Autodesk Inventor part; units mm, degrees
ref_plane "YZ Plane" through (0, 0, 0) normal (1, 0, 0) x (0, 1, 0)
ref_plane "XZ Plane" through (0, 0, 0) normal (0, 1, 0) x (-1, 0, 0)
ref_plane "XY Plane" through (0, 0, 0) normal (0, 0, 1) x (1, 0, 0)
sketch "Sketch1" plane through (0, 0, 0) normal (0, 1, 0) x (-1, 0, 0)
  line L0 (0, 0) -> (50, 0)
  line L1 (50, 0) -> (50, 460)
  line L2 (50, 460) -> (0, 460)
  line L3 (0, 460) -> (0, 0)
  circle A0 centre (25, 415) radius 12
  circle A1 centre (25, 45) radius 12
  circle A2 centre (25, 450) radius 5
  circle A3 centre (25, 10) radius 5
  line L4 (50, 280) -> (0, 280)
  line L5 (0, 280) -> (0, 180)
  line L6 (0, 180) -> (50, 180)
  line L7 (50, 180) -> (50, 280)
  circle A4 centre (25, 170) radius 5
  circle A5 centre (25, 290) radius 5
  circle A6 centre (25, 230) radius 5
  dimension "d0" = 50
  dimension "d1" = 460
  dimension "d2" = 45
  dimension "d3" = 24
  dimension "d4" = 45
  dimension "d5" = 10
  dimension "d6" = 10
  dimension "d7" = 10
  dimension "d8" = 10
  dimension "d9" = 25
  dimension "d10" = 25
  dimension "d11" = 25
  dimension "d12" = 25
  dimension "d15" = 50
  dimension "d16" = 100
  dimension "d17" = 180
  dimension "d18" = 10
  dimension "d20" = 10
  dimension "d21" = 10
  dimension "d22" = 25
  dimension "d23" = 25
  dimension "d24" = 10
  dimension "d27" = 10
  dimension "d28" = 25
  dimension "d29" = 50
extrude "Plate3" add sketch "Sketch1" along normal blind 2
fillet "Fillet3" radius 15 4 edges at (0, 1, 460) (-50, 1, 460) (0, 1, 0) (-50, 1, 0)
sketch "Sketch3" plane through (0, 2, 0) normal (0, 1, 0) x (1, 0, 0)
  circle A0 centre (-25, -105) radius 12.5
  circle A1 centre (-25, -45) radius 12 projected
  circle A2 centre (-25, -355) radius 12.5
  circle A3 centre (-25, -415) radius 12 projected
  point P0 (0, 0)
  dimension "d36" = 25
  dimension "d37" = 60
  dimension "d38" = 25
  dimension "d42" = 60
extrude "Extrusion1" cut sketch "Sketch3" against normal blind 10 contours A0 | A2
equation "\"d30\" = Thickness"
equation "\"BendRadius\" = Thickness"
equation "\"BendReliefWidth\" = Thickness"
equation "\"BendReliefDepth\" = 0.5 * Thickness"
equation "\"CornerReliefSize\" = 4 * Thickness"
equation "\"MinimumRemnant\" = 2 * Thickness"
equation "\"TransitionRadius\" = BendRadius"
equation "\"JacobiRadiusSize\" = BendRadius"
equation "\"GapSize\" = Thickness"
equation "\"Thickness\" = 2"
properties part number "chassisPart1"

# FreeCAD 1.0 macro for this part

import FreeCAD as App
import Part
import Sketcher

V = App.Vector


def edges_at(feature, points):
    """Names of the edges that pass closest to the given points."""
    edges = feature.Shape.Edges
    near = lambda p: min(range(len(edges)), key=lambda i: edges[i].distToShape(Part.Vertex(*p))[0])
    return sorted({f"Edge{near(p) + 1}" for p in points})

doc = App.newDocument("Part")
body = doc.addObject("PartDesign::Body", "Body")

# Sketch on XZ plane
sketch1 = body.newObject("Sketcher::SketchObject", "Sketch")
sketch1.AttachmentSupport = (doc.getObject("XZ_Plane"), [""])
sketch1.MapMode = "FlatFace"
sketch1.addGeometry([
    Part.LineSegment(V(0, 0, 0), V(-50, 0, 0)),  # 0
    Part.LineSegment(V(-50, 0, 0), V(-50, 460, 0)),  # 1
    Part.LineSegment(V(-50, 460, 0), V(0, 460, 0)),  # 2
    Part.LineSegment(V(0, 460, 0), V(0, 0, 0)),  # 3
    Part.Circle(V(-25, 10, 0), V(0, 0, 1), 5),  # 4
    Part.Circle(V(-25, 45, 0), V(0, 0, 1), 12),  # 5
    Part.Circle(V(-25, 170, 0), V(0, 0, 1), 5),  # 6
    Part.Circle(V(-25, 230, 0), V(0, 0, 1), 5),  # 7
    Part.Circle(V(-25, 450, 0), V(0, 0, 1), 5),  # 8
    Part.Circle(V(-25, 290, 0), V(0, 0, 1), 5),  # 9
    Part.Circle(V(-25, 415, 0), V(0, 0, 1), 12),  # 10
], False)
sketch1.addConstraint([
    Sketcher.Constraint("Coincident", 0, 2, 1, 1),
    Sketcher.Constraint("Coincident", 1, 2, 2, 1),
    Sketcher.Constraint("Coincident", 2, 2, 3, 1),
    Sketcher.Constraint("Coincident", 3, 2, 0, 1),
    Sketcher.Constraint("Horizontal", 0),
    Sketcher.Constraint("Vertical", 1),
    Sketcher.Constraint("Horizontal", 2),
    Sketcher.Constraint("Vertical", 3),
    Sketcher.Constraint("Coincident", 3, 2, -1, 1),
    Sketcher.Constraint("Equal", 4, 6),
    Sketcher.Constraint("Equal", 6, 7),
    Sketcher.Constraint("Equal", 7, 8),
    Sketcher.Constraint("Equal", 8, 9),
    Sketcher.Constraint("Equal", 5, 10),
    Sketcher.Constraint("Vertical", 4, 3, 5, 3),
    Sketcher.Constraint("Vertical", 5, 3, 6, 3),
    Sketcher.Constraint("Vertical", 6, 3, 7, 3),
    Sketcher.Constraint("Vertical", 7, 3, 8, 3),
    Sketcher.Constraint("Vertical", 8, 3, 9, 3),
    Sketcher.Constraint("Vertical", 9, 3, 10, 3),
    Sketcher.Constraint("Diameter", 4, 10.0),
    Sketcher.Constraint("Diameter", 5, 24.0),
    Sketcher.Constraint("DistanceX", 0, 2, 0, 1, 50.0),
    Sketcher.Constraint("DistanceY", 1, 1, 1, 2, 460.0),
    Sketcher.Constraint("DistanceX", 4, 3, -1, 1, 25.0),
    Sketcher.Constraint("DistanceY", -1, 1, 4, 3, 10.0),
    Sketcher.Constraint("DistanceY", -1, 1, 5, 3, 45.0),
    Sketcher.Constraint("DistanceY", 8, 3, 1, 2, 10.0),
    Sketcher.Constraint("DistanceY", 10, 3, 1, 2, 45.0),
    Sketcher.Constraint("DistanceY", -1, 1, 6, 3, 170.0),
    Sketcher.Constraint("DistanceY", -1, 1, 7, 3, 230.0),
    Sketcher.Constraint("DistanceY", -1, 1, 9, 3, 290.0),
])
pad1 = body.newObject("PartDesign::Pad", "Pad")
pad1.Profile = sketch1
pad1.Length = 2
pad1.Reversed = True
doc.recompute()

fillet = body.newObject("PartDesign::Fillet", "Fillet")
fillet.Base = (pad1, edges_at(pad1, [
    (0, 1, 460),
    (-50, 1, 460),
    (0, 1, 0),
    (-50, 1, 0),
]))
fillet.Radius = 15

# Sketch on XZ plane
sketch2 = body.newObject("Sketcher::SketchObject", "Sketch001")
sketch2.AttachmentSupport = (doc.getObject("XZ_Plane"), [""])
sketch2.MapMode = "FlatFace"
sketch2.AttachmentOffset = App.Placement(V(0, 0, -2), App.Rotation())
sketch2.addGeometry([
    Part.Circle(V(-25, 105, 0), V(0, 0, 1), 12),
    Part.Circle(V(-25, 355, 0), V(0, 0, 1), 12),
], False)
sketch2.addConstraint([
    Sketcher.Constraint("Equal", 0, 1),
    Sketcher.Constraint("Vertical", 0, 3, 1, 3),
    Sketcher.Constraint("Diameter", 0, 25.0),
    Sketcher.Constraint("DistanceX", 0, 3, -1, 1, 25.0),
    Sketcher.Constraint("DistanceY", -1, 1, 0, 3, 105.0),
    Sketcher.Constraint("DistanceY", -1, 1, 1, 3, 355.0),
])
pocket1 = body.newObject("PartDesign::Pocket", "Pocket")
pocket1.Profile = sketch2
pocket1.Length = 10
pocket1.Reversed = True

doc.recompute()
